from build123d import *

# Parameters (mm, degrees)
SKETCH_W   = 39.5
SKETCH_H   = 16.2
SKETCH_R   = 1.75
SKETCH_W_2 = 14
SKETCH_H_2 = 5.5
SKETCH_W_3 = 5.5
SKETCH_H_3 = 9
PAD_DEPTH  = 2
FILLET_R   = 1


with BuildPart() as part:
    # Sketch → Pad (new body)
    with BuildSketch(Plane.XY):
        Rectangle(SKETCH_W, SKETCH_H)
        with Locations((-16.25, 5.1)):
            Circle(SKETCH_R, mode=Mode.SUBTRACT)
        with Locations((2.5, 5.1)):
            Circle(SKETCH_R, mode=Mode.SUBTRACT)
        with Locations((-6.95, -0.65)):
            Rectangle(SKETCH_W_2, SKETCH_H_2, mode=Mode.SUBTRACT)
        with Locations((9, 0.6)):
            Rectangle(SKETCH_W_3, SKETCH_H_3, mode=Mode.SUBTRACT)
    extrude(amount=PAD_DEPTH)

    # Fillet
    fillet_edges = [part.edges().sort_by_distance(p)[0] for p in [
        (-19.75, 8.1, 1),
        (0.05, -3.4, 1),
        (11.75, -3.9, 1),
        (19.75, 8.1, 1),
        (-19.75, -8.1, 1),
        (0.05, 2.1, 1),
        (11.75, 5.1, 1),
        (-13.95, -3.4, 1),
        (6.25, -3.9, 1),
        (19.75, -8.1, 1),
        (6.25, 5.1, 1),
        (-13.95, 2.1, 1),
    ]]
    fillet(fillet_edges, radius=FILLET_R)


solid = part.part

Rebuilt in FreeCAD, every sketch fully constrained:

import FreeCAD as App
import Part
import Sketcher
from FreeCAD import Vector
Q = App.Units.Quantity


def edges_at(feature, points):
    """Names of the edges that pass closest to the given points."""
    edges = feature.Shape.Edges
    near = lambda p: min(range(len(edges)), key=lambda i: edges[i].distToShape(Part.Vertex(*p))[0])
    return sorted({f"Edge{near(p) + 1}" for p in points})


def add_polygon(sketch, points):
    """Adds a closed chain of lines whose ends are joined by coincident constraints."""
    first, n = sketch.GeometryCount, len(points)
    for a, b in zip(points, points[1:] + points[:1]):
        sketch.addGeometry(Part.LineSegment(App.Vector(*a, 0), App.Vector(*b, 0)), False)
    for i in range(n):
        sketch.addConstraint(Sketcher.Constraint("Coincident", first + i, 2, first + (i + 1) % n, 1))

doc = App.newDocument("Part")
params = doc.addObject("Spreadsheet::Sheet", "Params")
for row, (alias, value) in enumerate([
    ("sketch1_diameter", "3.5 mm"),
    ("sketch1_width", "14 mm"),
    ("sketch1_height", "9 mm"),
    ("sketch1_width2", "39.5 mm"),
    ("sketch1_width3", "5.5 mm"),
    ("pad1_length", "2 mm"),
    ("fillet_radius", "1 mm"),
], start=1):
    params.set(f"A{row}", alias)
    params.set(f"B{row}", "=" + value)
    params.setAlias(f"B{row}", alias)

body = doc.addObject("PartDesign::Body", "Body")

# Sketch on XY plane
sketch1 = body.newObject("Sketcher::SketchObject", "Sketch")
sketch1.AttachmentSupport = (doc.getObject("XY_Plane"), [""])
sketch1.MapMode = "FlatFace"
add_polygon(sketch1, [(-19.8, 8.1), (-19.8, -8.1), (19.8, -8.1), (19.8, 8.1)])  # lines 0-3
add_polygon(sketch1, [(0.1, -3.4), (-13.9, -3.4), (-13.9, 2.1), (0.1, 2.1)])  # lines 4-7
add_polygon(sketch1, [(11.8, -3.9), (6.2, -3.9), (6.2, 5.1), (11.8, 5.1)])  # lines 8-11
sketch1.addGeometry(Part.Circle(Vector(-16.2, 5.1, 0), Vector(0, 0, 1), 1.8), False)  # 12
sketch1.addGeometry(Part.Circle(Vector(2.5, 5.1, 0), Vector(0, 0, 1), 1.8), False)  # 13
sketch1.addConstraint([
    Sketcher.Constraint("Vertical", 0),
    Sketcher.Constraint("Horizontal", 1),
    Sketcher.Constraint("Vertical", 2),
    Sketcher.Constraint("Horizontal", 3),
    Sketcher.Constraint("Horizontal", 4),
    Sketcher.Constraint("Vertical", 5),
    Sketcher.Constraint("Horizontal", 6),
    Sketcher.Constraint("Vertical", 7),
    Sketcher.Constraint("Horizontal", 8),
    Sketcher.Constraint("Vertical", 9),
    Sketcher.Constraint("Horizontal", 10),
    Sketcher.Constraint("Vertical", 11),
    Sketcher.Constraint("Equal", 12, 13),
    Sketcher.Constraint("Symmetric", 0, 2, 2, 2, -1, 1),
    Sketcher.Constraint("Horizontal", 12, 3, 13, 3),
    Sketcher.Constraint("Horizontal", 13, 3, 9, 2),
    Sketcher.Constraint("Equal", 10, 5),
    Sketcher.Constraint("Diameter", 12, Q("3.5 mm")),
    Sketcher.Constraint("DistanceX", 4, 2, 4, 1, Q("14 mm")),
    Sketcher.Constraint("DistanceY", 9, 1, 9, 2, Q("9 mm")),
    Sketcher.Constraint("DistanceX", 1, 1, 1, 2, Q("39.5 mm")),
    Sketcher.Constraint("DistanceX", 8, 2, 8, 1, Q("5.5 mm")),
    Sketcher.Constraint("DistanceY", 0, 2, 0, 1, Q("16.2 mm")),
    Sketcher.Constraint("DistanceX", 12, 3, 1, 2, Q("36 mm")),
    Sketcher.Constraint("DistanceY", 13, 3, 2, 2, Q("3 mm")),
    Sketcher.Constraint("DistanceY", 5, 2, 12, 3, Q("3 mm")),
    Sketcher.Constraint("DistanceX", 10, 2, 2, 2, Q("8 mm")),
    Sketcher.Constraint("DistanceX", -1, 1, 13, 3, Q("2.5 mm")),
    Sketcher.Constraint("DistanceX", 0, 2, 4, 2, Q("5.8 mm")),
])
sketch1.setExpression("Constraints[29]", "Params.sketch1_diameter")
sketch1.setExpression("Constraints[30]", "Params.sketch1_width")
sketch1.setExpression("Constraints[31]", "Params.sketch1_height")
sketch1.setExpression("Constraints[32]", "Params.sketch1_width2")
sketch1.setExpression("Constraints[33]", "Params.sketch1_width3")
pad1 = body.newObject("PartDesign::Pad", "Pad")
pad1.Profile = sketch1
pad1.setExpression("Length", "Params.pad1_length")
doc.recompute()

fillet = body.newObject("PartDesign::Fillet", "Fillet")
fillet.Base = (pad1, edges_at(pad1, [
    (-19.75, 8.1, 1),
    (0.05, -3.4, 1),
    (11.75, -3.9, 1),
    (19.75, 8.1, 1),
    (-19.75, -8.1, 1),
    (0.05, 2.1, 1),
    (11.75, 5.1, 1),
    (-13.95, -3.4, 1),
    (6.25, -3.9, 1),
    (19.75, -8.1, 1),
    (6.25, 5.1, 1),
    (-13.95, 2.1, 1),
]))
fillet.setExpression("Radius", "Params.fillet_radius")

doc.recompute()
